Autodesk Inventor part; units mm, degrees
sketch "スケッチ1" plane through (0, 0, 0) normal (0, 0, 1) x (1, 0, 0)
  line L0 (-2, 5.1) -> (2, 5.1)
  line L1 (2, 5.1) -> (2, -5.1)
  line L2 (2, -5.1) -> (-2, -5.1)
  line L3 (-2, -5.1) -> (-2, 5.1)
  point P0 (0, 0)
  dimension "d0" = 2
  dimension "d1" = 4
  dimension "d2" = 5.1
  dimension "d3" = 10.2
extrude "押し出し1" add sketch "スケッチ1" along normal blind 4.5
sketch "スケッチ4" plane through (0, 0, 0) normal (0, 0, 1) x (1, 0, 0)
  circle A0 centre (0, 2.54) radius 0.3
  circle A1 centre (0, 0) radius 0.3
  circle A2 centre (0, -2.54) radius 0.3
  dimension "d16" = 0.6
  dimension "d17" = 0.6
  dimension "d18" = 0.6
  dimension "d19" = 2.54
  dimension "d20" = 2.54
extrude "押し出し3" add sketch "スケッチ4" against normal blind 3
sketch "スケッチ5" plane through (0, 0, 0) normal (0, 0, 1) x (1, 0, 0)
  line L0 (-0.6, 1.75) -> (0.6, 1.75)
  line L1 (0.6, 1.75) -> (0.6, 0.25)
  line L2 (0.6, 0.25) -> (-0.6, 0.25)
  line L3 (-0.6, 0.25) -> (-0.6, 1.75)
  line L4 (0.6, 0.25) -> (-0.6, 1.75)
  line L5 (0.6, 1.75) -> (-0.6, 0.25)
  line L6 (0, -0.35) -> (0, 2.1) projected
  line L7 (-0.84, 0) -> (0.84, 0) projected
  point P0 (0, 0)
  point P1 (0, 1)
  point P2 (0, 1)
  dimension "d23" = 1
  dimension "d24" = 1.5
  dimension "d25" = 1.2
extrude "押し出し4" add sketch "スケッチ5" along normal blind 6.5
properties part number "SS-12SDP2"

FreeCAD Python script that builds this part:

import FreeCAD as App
import Part
import Sketcher

V = App.Vector

doc = App.newDocument("Part")
body = doc.addObject("PartDesign::Body", "Body")

# Sketch on XY plane
sketch1 = body.newObject("Sketcher::SketchObject", "Sketch")
sketch1.AttachmentSupport = (doc.getObject("XY_Plane"), [""])
sketch1.MapMode = "FlatFace"
sketch1.addGeometry(Part.LineSegment(V(2, 5.1, 0), V(-2, 5.1, 0)), False)
sketch1.addGeometry(Part.LineSegment(V(-2, 5.1, 0), V(-2, -5.1, 0)), False)
sketch1.addGeometry(Part.LineSegment(V(-2, -5.1, 0), V(2, -5.1, 0)), False)
sketch1.addGeometry(Part.LineSegment(V(2, -5.1, 0), V(2, 5.1, 0)), False)
sketch1.addConstraint(Sketcher.Constraint("Coincident", 0, 2, 1, 1))
sketch1.addConstraint(Sketcher.Constraint("Coincident", 1, 2, 2, 1))
sketch1.addConstraint(Sketcher.Constraint("Coincident", 2, 2, 3, 1))
sketch1.addConstraint(Sketcher.Constraint("Coincident", 3, 2, 0, 1))
sketch1.addConstraint(Sketcher.Constraint("Horizontal", 0))
sketch1.addConstraint(Sketcher.Constraint("Vertical", 1))
sketch1.addConstraint(Sketcher.Constraint("Horizontal", 2))
sketch1.addConstraint(Sketcher.Constraint("Vertical", 3))
sketch1.addConstraint(Sketcher.Constraint("Symmetric", 0, 2, 2, 2, -1, 1))
sketch1.addConstraint(Sketcher.Constraint("DistanceX", 0, 2, 0, 1, 4.0))
sketch1.addConstraint(Sketcher.Constraint("DistanceY", 1, 2, 1, 1, 10.2))
pad1 = body.newObject("PartDesign::Pad", "Pad")
pad1.Profile = sketch1
pad1.Length = 4.5

# Sketch on XY plane
sketch2 = body.newObject("Sketcher::SketchObject", "Sketch001")
sketch2.AttachmentSupport = (doc.getObject("XY_Plane"), [""])
sketch2.MapMode = "FlatFace"
sketch2.addGeometry(Part.Circle(V(0, 2.54, 0), V(0, 0, 1), 0.3), False)
sketch2.addGeometry(Part.Circle(V(0, 0, 0), V(0, 0, 1), 0.3), False)
sketch2.addGeometry(Part.Circle(V(0, -2.54, 0), V(0, 0, 1), 0.3), False)
sketch2.addConstraint(Sketcher.Constraint("Coincident", 1, 3, -1, 1))
sketch2.addConstraint(Sketcher.Constraint("Equal", 0, 1))
sketch2.addConstraint(Sketcher.Constraint("Equal", 1, 2))
sketch2.addConstraint(Sketcher.Constraint("Symmetric", 0, 3, 2, 3, -1, 1))
sketch2.addConstraint(Sketcher.Constraint("PointOnObject", 0, 3, -2))
sketch2.addConstraint(Sketcher.Constraint("Diameter", 0, 0.6))
sketch2.addConstraint(Sketcher.Constraint("DistanceY", -1, 1, 0, 3, 2.54))
pad2 = body.newObject("PartDesign::Pad", "Pad001")
pad2.Profile = sketch2
pad2.Length = 3
pad2.Reversed = True

# Sketch on XY plane
sketch3 = body.newObject("Sketcher::SketchObject", "Sketch002")
sketch3.AttachmentSupport = (doc.getObject("XY_Plane"), [""])
sketch3.MapMode = "FlatFace"
sketch3.addGeometry(Part.LineSegment(V(-0.6, 1.75, 0), V(-0.6, 0.25, 0)), False)
sketch3.addGeometry(Part.LineSegment(V(-0.6, 0.25, 0), V(0.6, 0.25, 0)), False)
sketch3.addGeometry(Part.LineSegment(V(0.6, 0.25, 0), V(0.6, 1.75, 0)), False)
sketch3.addGeometry(Part.LineSegment(V(0.6, 1.75, 0), V(-0.6, 1.75, 0)), False)
sketch3.addConstraint(Sketcher.Constraint("Coincident", 0, 2, 1, 1))
sketch3.addConstraint(Sketcher.Constraint("Coincident", 1, 2, 2, 1))
sketch3.addConstraint(Sketcher.Constraint("Coincident", 2, 2, 3, 1))
sketch3.addConstraint(Sketcher.Constraint("Coincident", 3, 2, 0, 1))
sketch3.addConstraint(Sketcher.Constraint("Vertical", 0))
sketch3.addConstraint(Sketcher.Constraint("Horizontal", 1))
sketch3.addConstraint(Sketcher.Constraint("Vertical", 2))
sketch3.addConstraint(Sketcher.Constraint("Horizontal", 3))
sketch3.addConstraint(Sketcher.Constraint("DistanceX", 1, 1, 1, 2, 1.2))
sketch3.addConstraint(Sketcher.Constraint("DistanceY", 0, 2, 0, 1, 1.5))
sketch3.addConstraint(Sketcher.Constraint("DistanceX", 0, 2, -1, 1, 0.6))
sketch3.addConstraint(Sketcher.Constraint("DistanceY", -1, 1, 0, 2, 0.25))
pad3 = body.newObject("PartDesign::Pad", "Pad002")
pad3.Profile = sketch3
pad3.Length = 6.5

doc.recompute()
